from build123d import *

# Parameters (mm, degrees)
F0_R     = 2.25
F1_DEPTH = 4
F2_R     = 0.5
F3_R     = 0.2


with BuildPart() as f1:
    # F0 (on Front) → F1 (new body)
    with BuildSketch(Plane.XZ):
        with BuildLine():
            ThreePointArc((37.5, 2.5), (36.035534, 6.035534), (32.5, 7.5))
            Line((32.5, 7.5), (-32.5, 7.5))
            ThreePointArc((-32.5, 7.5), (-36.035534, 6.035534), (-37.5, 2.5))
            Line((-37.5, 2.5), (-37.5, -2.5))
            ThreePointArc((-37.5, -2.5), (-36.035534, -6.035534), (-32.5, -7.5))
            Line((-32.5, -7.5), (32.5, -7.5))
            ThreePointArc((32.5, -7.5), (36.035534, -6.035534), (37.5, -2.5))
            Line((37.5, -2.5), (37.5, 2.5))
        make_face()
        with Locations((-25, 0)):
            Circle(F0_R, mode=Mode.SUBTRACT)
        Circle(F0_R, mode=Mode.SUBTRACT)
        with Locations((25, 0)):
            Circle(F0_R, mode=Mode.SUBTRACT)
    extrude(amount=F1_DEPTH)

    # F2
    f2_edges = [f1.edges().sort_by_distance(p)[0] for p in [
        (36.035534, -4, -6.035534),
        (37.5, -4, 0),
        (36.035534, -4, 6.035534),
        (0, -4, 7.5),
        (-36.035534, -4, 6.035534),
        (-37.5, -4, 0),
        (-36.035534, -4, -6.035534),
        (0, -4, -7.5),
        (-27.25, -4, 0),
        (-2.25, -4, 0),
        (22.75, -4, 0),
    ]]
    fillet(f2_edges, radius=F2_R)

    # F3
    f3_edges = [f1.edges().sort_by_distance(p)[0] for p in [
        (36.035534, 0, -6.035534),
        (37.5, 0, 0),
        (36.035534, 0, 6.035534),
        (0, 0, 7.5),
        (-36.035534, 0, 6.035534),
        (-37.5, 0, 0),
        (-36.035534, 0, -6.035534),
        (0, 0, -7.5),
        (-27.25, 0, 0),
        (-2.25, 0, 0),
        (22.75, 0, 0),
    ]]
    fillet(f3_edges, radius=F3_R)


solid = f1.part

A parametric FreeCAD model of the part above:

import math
import FreeCAD as App
import Part
import Sketcher

V = App.Vector


def edges_at(feature, points):
    """Names of the edges that pass closest to the given points."""
    edges = feature.Shape.Edges
    near = lambda p: min(range(len(edges)), key=lambda i: edges[i].distToShape(Part.Vertex(*p))[0])
    return sorted({f"Edge{near(p) + 1}" for p in points})

doc = App.newDocument("Part")
body = doc.addObject("PartDesign::Body", "Body")

# Sketch on XZ plane
sketch1 = body.newObject("Sketcher::SketchObject", "Sketch")
sketch1.AttachmentSupport = (doc.getObject("XZ_Plane"), [""])
sketch1.MapMode = "FlatFace"
sketch1.addGeometry([
    Part.ArcOfCircle(Part.Circle(V(32.5, 2.5, 0), V(0, 0, 1), 5), math.radians(0), math.radians(90)),  # 0
    Part.LineSegment(V(32.5, 7.5, 0), V(-32.5, 7.5, 0)),  # 1
    Part.ArcOfCircle(Part.Circle(V(-32.5, 2.5, 0), V(0, 0, 1), 5), math.radians(90), math.radians(180)),  # 2
    Part.LineSegment(V(-37.5, 2.5, 0), V(-37.5, -2.5, 0)),  # 3
    Part.ArcOfCircle(Part.Circle(V(-32.5, -2.5, 0), V(0, 0, 1), 5), math.radians(180), math.radians(270)),  # 4
    Part.LineSegment(V(-32.5, -7.5, 0), V(32.5, -7.5, 0)),  # 5
    Part.ArcOfCircle(Part.Circle(V(32.5, -2.5, 0), V(0, 0, 1), 5), math.radians(-90), math.radians(0)),  # 6
    Part.LineSegment(V(37.5, -2.5, 0), V(37.5, 2.5, 0)),  # 7
    Part.Circle(V(-25, 0, 0), V(0, 0, 1), 2.2),  # 8
    Part.Circle(V(0, 0, 0), V(0, 0, 1), 2.2),  # 9
    Part.Circle(V(25, 0, 0), V(0, 0, 1), 2.2),  # 10
], False)
sketch1.addConstraint([
    Sketcher.Constraint("Tangent", 0, 2, 1, 1),
    Sketcher.Constraint("Tangent", 1, 2, 2, 1),
    Sketcher.Constraint("Tangent", 2, 2, 3, 1),
    Sketcher.Constraint("Tangent", 3, 2, 4, 1),
    Sketcher.Constraint("Tangent", 4, 2, 5, 1),
    Sketcher.Constraint("Tangent", 5, 2, 6, 1),
    Sketcher.Constraint("Tangent", 6, 2, 7, 1),
    Sketcher.Constraint("Tangent", 7, 2, 0, 1),
    Sketcher.Constraint("Horizontal", 1),
    Sketcher.Constraint("Vertical", 3),
    Sketcher.Constraint("Horizontal", 5),
    Sketcher.Constraint("Vertical", 7),
    Sketcher.Constraint("Coincident", 9, 3, -1, 1),
    Sketcher.Constraint("Equal", 0, 2),
    Sketcher.Constraint("Equal", 2, 4),
    Sketcher.Constraint("Equal", 4, 6),
    Sketcher.Constraint("Equal", 8, 9),
    Sketcher.Constraint("Equal", 9, 10),
    Sketcher.Constraint("Symmetric", 0, 3, 4, 3, -1, 1),
    Sketcher.Constraint("Symmetric", 8, 3, 10, 3, -1, 1),
    Sketcher.Constraint("PointOnObject", 8, 3, -1),
    Sketcher.Constraint("Radius", 0, 5.0),
    Sketcher.Constraint("Diameter", 8, 4.5),
    Sketcher.Constraint("DistanceX", 1, 2, 1, 1, 65.0),
    Sketcher.Constraint("DistanceY", 3, 2, 3, 1, 5.0),
    Sketcher.Constraint("DistanceX", 8, 3, -1, 1, 25.0),
])
pad1 = body.newObject("PartDesign::Pad", "Pad")
pad1.Profile = sketch1
pad1.Length = 4
doc.recompute()

fillet = body.newObject("PartDesign::Fillet", "Fillet")
fillet.Base = (pad1, edges_at(pad1, [
    (36.036, -4, -6.036),
    (37.5, -4, 0),
    (36.036, -4, 6.036),
    (0, -4, 7.5),
    (-36.036, -4, 6.036),
    (-37.5, -4, 0),
    (-36.036, -4, -6.036),
    (0, -4, -7.5),
    (-27.25, -4, 0),
    (-2.25, -4, 0),
    (22.75, -4, 0),
]))
fillet.Radius = 0.5
doc.recompute()

fillet2 = body.newObject("PartDesign::Fillet", "Fillet001")
fillet2.Base = (fillet, edges_at(fillet, [
    (36.036, 0, -6.036),
    (37.5, 0, 0),
    (36.036, 0, 6.036),
    (0, 0, 7.5),
    (-36.036, 0, 6.036),
    (-37.5, 0, 0),
    (-36.036, 0, -6.036),
    (0, 0, -7.5),
    (-27.25, 0, 0),
    (-2.25, 0, 0),
    (22.75, 0, 0),
]))
fillet2.Radius = 0.2

doc.recompute()
